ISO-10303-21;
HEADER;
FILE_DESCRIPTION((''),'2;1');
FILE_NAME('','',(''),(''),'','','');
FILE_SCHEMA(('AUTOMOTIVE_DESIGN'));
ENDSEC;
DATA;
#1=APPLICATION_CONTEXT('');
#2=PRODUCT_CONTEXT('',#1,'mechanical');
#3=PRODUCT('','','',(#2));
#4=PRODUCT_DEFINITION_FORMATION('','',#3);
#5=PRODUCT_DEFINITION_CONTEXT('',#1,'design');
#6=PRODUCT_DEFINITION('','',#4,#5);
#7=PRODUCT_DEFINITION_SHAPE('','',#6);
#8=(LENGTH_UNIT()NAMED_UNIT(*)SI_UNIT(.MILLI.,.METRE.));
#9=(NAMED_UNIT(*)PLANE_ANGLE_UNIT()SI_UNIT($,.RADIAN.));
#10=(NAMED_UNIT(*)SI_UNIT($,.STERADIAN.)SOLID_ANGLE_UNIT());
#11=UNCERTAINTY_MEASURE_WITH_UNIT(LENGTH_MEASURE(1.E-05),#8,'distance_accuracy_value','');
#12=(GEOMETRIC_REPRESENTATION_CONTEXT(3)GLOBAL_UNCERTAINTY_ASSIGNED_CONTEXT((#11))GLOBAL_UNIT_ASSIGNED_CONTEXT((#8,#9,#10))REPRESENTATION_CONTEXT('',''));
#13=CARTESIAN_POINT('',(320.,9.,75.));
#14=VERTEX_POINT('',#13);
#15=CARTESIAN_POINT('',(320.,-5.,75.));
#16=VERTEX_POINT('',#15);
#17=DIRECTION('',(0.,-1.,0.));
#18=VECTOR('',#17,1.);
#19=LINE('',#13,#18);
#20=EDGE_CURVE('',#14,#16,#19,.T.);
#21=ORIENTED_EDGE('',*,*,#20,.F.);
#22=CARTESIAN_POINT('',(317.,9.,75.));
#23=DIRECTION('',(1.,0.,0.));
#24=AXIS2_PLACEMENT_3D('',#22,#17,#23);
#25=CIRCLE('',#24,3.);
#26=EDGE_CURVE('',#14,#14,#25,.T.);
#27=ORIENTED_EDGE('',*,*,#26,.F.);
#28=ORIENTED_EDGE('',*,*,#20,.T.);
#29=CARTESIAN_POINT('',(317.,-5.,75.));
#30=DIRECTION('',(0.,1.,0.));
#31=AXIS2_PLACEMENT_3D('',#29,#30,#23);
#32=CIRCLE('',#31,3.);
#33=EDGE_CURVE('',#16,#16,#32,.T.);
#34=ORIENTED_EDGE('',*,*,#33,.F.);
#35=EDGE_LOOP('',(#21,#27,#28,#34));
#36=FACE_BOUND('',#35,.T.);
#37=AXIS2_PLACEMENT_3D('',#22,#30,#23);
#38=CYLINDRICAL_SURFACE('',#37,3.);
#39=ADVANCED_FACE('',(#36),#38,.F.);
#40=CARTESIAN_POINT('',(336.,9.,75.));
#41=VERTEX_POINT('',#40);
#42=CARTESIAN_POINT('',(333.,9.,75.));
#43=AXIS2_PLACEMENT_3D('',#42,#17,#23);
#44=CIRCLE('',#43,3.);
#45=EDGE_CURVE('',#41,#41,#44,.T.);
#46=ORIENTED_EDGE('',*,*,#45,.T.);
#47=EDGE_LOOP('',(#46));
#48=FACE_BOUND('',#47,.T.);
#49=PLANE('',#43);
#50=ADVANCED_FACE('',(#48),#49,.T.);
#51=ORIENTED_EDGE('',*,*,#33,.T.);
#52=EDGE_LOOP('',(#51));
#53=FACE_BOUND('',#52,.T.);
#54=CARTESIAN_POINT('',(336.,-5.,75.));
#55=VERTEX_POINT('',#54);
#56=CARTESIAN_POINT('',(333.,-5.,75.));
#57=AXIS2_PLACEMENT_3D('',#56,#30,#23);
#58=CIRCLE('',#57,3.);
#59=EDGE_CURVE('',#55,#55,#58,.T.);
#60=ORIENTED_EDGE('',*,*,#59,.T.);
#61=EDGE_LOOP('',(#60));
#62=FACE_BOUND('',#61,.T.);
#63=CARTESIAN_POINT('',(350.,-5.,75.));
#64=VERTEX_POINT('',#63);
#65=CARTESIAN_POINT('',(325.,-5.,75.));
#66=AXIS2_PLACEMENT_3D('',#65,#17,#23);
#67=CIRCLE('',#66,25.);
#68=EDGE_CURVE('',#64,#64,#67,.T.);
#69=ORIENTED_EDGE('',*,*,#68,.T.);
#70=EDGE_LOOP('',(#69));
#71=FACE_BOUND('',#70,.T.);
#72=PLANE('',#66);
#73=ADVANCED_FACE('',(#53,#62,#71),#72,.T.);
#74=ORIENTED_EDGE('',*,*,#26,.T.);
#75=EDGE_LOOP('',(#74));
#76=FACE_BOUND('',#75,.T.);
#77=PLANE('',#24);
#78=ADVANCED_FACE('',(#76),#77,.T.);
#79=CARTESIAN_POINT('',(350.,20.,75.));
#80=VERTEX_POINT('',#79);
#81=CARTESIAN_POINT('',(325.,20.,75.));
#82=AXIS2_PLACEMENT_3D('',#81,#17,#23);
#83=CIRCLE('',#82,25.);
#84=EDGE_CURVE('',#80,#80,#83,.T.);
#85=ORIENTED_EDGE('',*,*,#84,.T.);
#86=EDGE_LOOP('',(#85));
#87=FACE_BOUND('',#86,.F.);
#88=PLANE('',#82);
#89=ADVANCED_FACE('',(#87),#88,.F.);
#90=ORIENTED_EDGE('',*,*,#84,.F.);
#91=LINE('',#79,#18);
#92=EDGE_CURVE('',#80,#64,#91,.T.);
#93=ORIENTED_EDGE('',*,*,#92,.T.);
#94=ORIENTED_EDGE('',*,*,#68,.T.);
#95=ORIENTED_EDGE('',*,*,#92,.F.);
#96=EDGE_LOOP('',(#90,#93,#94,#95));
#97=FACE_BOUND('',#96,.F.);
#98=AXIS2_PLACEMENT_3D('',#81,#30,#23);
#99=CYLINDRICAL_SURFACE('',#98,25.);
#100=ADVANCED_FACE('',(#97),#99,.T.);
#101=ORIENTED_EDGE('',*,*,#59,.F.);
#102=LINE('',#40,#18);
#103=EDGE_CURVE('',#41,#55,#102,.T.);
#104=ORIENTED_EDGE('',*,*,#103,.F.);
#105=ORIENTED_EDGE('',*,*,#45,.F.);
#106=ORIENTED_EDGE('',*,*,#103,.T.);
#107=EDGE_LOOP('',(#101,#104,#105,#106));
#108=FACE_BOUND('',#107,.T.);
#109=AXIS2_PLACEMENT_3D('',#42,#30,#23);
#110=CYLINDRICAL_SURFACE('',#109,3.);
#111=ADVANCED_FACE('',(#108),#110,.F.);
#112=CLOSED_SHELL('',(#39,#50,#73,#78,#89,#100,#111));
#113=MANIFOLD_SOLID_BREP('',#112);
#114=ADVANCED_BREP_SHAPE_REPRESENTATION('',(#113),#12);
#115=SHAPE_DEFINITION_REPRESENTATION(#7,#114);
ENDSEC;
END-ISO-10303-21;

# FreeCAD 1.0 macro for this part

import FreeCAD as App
import Part
import Sketcher
from FreeCAD import Vector

doc = App.newDocument("Part")
body = doc.addObject("PartDesign::Body", "Body")

# Sketch on XY plane
sketch1 = body.newObject("Sketcher::SketchObject", "Sketch")
sketch1.AttachmentSupport = (doc.getObject("XY_Plane"), [""])
sketch1.MapMode = "FlatFace"
sketch1.addGeometry(Part.Circle(Vector(0, 0, 0), Vector(0, 0, 1), 3), False)
sketch1.addConstraint([
    Sketcher.Constraint("Coincident", 0, 3, -1, 1),
    Sketcher.Constraint("Diameter", 0, 6.0),
])
pad1 = body.newObject("PartDesign::Pad", "Pad")
pad1.Profile = sketch1
pad1.Length = 15
body2 = doc.addObject("PartDesign::Body", "Body001")
doc.recompute()

body.Placement = App.Placement(Vector(0, 0, 0), App.Rotation(Vector(1, 0, 0), 90))
boolean = body2.newObject("PartDesign::Boolean", "Boolean")
boolean.Type = "Fuse"
boolean.addObjects([body])
body3 = doc.addObject("PartDesign::Body", "Body002")
doc.recompute()

body2.Placement = App.Placement(Vector(258, 9, 130), App.Rotation(Vector(0, 0, 1), 0))
boolean2 = body3.newObject("PartDesign::Boolean", "Boolean001")
boolean2.Type = "Fuse"
boolean2.addObjects([body2])
body4 = doc.addObject("PartDesign::Body", "Body003")

# Sketch on XY plane
sketch2 = body4.newObject("Sketcher::SketchObject", "Sketch001")
sketch2.AttachmentSupport = (doc.getObject("XY_Plane003"), [""])
sketch2.MapMode = "FlatFace"
sketch2.addGeometry(Part.Circle(Vector(0, 0, 0), Vector(0, 0, 1), 3), False)
sketch2.addConstraint([
    Sketcher.Constraint("Coincident", 0, 3, -1, 1),
    Sketcher.Constraint("Diameter", 0, 6.0),
])
pad2 = body4.newObject("PartDesign::Pad", "Pad001")
pad2.Profile = sketch2
pad2.Length = 15
body5 = doc.addObject("PartDesign::Body", "Body004")
doc.recompute()

body4.Placement = App.Placement(Vector(0, 0, 0), App.Rotation(Vector(1, 0, 0), 90))
boolean3 = body5.newObject("PartDesign::Boolean", "Boolean002")
boolean3.Type = "Fuse"
boolean3.addObjects([body4])
body6 = doc.addObject("PartDesign::Body", "Body005")
doc.recompute()

body5.Placement = App.Placement(Vector(242, 9, 130), App.Rotation(Vector(0, 0, 1), 0))
boolean4 = body6.newObject("PartDesign::Boolean", "Boolean003")
boolean4.Type = "Fuse"
boolean4.addObjects([body5])
body7 = doc.addObject("PartDesign::Body", "Body006")

# Sketch on XY plane
sketch3 = body7.newObject("Sketcher::SketchObject", "Sketch002")
sketch3.AttachmentSupport = (doc.getObject("XY_Plane006"), [""])
sketch3.MapMode = "FlatFace"
sketch3.addGeometry(Part.Circle(Vector(0, 0, 0), Vector(0, 0, 1), 25), False)
sketch3.addConstraint([
    Sketcher.Constraint("Coincident", 0, 3, -1, 1),
    Sketcher.Constraint("Diameter", 0, 50.0),
])
pad3 = body7.newObject("PartDesign::Pad", "Pad002")
pad3.Profile = sketch3
pad3.Length = 25
body8 = doc.addObject("PartDesign::Body", "Body007")
doc.recompute()

body7.Placement = App.Placement(Vector(0, 0, 0), App.Rotation(Vector(1, 0, 0), 90))
boolean5 = body8.newObject("PartDesign::Boolean", "Boolean004")
boolean5.Type = "Fuse"
boolean5.addObjects([body7])
body9 = doc.addObject("PartDesign::Body", "Body008")
doc.recompute()

body8.Placement = App.Placement(Vector(250, 20, 130), App.Rotation(Vector(0, 0, 1), 0))
boolean6 = body9.newObject("PartDesign::Boolean", "Boolean005")
boolean6.Type = "Fuse"
boolean6.addObjects([body8])
doc.recompute()

boolean7 = body9.newObject("PartDesign::Boolean", "Boolean006")
boolean7.Type = "Cut"
boolean7.addObjects([body6])
doc.recompute()

boolean8 = body9.newObject("PartDesign::Boolean", "Boolean007")
boolean8.Type = "Cut"
boolean8.addObjects([body3])
body10 = doc.addObject("PartDesign::Body", "Body009")
doc.recompute()

body9.Placement = App.Placement(Vector(75, 0, -55), App.Rotation(Vector(0, 0, 1), 0))
boolean9 = body10.newObject("PartDesign::Boolean", "Boolean008")
boolean9.Type = "Fuse"
boolean9.addObjects([body9])

doc.recompute()
